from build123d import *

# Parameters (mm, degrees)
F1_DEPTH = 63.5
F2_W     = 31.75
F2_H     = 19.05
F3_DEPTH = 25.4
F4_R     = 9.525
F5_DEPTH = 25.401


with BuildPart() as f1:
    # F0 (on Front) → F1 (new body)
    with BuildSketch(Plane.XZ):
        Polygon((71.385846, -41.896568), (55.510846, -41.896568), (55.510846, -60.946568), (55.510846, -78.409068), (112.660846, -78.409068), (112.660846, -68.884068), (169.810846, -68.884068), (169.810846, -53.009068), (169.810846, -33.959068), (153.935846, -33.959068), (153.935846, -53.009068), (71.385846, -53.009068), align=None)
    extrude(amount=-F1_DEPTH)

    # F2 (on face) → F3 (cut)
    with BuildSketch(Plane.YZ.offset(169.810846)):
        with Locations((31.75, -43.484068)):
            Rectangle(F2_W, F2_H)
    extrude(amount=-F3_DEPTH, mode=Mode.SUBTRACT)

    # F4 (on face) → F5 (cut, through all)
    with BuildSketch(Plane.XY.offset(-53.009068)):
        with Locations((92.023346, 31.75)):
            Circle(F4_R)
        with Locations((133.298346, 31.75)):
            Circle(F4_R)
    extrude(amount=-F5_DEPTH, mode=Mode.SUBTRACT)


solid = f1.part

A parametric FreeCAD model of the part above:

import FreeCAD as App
import Part
import Sketcher

V = App.Vector
Q = App.Units.Quantity


def add_polygon(sketch, points):
    """Adds a closed chain of lines whose ends are joined by coincident constraints."""
    first, n = sketch.GeometryCount, len(points)
    for a, b in zip(points, points[1:] + points[:1]):
        sketch.addGeometry(Part.LineSegment(App.Vector(*a, 0), App.Vector(*b, 0)), False)
    for i in range(n):
        sketch.addConstraint(Sketcher.Constraint("Coincident", first + i, 2, first + (i + 1) % n, 1))

doc = App.newDocument("Part")
body = doc.addObject("PartDesign::Body", "Body")

sketch1 = body.newObject("Sketcher::SketchObject", "Sketch")
sketch1.AttachmentSupport = (doc.getObject("XZ_Plane"), [""])
sketch1.MapMode = "FlatFace"
add_polygon(sketch1, [(71, -42), (56, -42), (56, -78), (113, -78), (113, -69), (170, -69), (170, -34), (154, -34), (154, -53), (71, -53)])
sketch1.addConstraint(Sketcher.Constraint("Horizontal", 0))
sketch1.addConstraint(Sketcher.Constraint("Vertical", 1))
sketch1.addConstraint(Sketcher.Constraint("Horizontal", 2))
sketch1.addConstraint(Sketcher.Constraint("Vertical", 3))
sketch1.addConstraint(Sketcher.Constraint("Horizontal", 4))
sketch1.addConstraint(Sketcher.Constraint("Vertical", 5))
sketch1.addConstraint(Sketcher.Constraint("Horizontal", 6))
sketch1.addConstraint(Sketcher.Constraint("Vertical", 7))
sketch1.addConstraint(Sketcher.Constraint("Horizontal", 8))
sketch1.addConstraint(Sketcher.Constraint("Vertical", 9))
sketch1.addConstraint(Sketcher.Constraint("Equal", 2, 4))
sketch1.addConstraint(Sketcher.Constraint("Equal", 0, 6))
sketch1.addConstraint(Sketcher.Constraint("DistanceY", 2, 2, 7, 2, Q("1 in")))
sketch1.addConstraint(Sketcher.Constraint("DistanceX", 2, 1, 2, 2, Q("2.25 in")))
sketch1.addConstraint(Sketcher.Constraint("DistanceX", 8, 2, 8, 1, Q("3.25 in")))
sketch1.addConstraint(Sketcher.Constraint("DistanceY", 7, 2, 7, 1, Q("0.75 in")))
sketch1.addConstraint(Sketcher.Constraint("DistanceY", 1, 2, 1, 1, Q("1.4375 in")))
sketch1.addConstraint(Sketcher.Constraint("DistanceY", 3, 1, 3, 2, Q("0.375 in")))
sketch1.addConstraint(Sketcher.Constraint("DistanceY", 0, 2, -1, 1, 41.896568))
sketch1.addConstraint(Sketcher.Constraint("DistanceX", -1, 1, 0, 2, 55.510846))
pad1 = body.newObject("PartDesign::Pad", "Pad")
pad1.Profile = sketch1
pad1.Length = Q("2.5 in")
pad1.Reversed = True

sketch2 = body.newObject("Sketcher::SketchObject", "Sketch001")
sketch2.AttachmentSupport = (doc.getObject("YZ_Plane"), [""])
sketch2.MapMode = "FlatFace"
sketch2.AttachmentOffset = App.Placement(V(0, 0, 169.810846), App.Rotation())
add_polygon(sketch2, [(16, -34), (16, -53), (48, -53), (48, -34)])
sketch2.addConstraint(Sketcher.Constraint("Vertical", 0))
sketch2.addConstraint(Sketcher.Constraint("Horizontal", 1))
sketch2.addConstraint(Sketcher.Constraint("Vertical", 2))
sketch2.addConstraint(Sketcher.Constraint("Horizontal", 3))
sketch2.addConstraint(Sketcher.Constraint("DistanceX", 1, 1, 1, 2, Q("1.25 in")))
sketch2.addConstraint(Sketcher.Constraint("DistanceY", 0, 2, 0, 1, Q("0.75 in")))
sketch2.addConstraint(Sketcher.Constraint("DistanceX", -1, 1, 0, 2, Q("0.625 in")))
sketch2.addConstraint(Sketcher.Constraint("DistanceY", 2, 2, -1, 1, 33.959068))
pocket1 = body.newObject("PartDesign::Pocket", "Pocket")
pocket1.Profile = sketch2
pocket1.Length = Q("1 in")

sketch3 = body.newObject("Sketcher::SketchObject", "Sketch002")
sketch3.AttachmentSupport = (doc.getObject("XY_Plane"), [""])
sketch3.MapMode = "FlatFace"
sketch3.AttachmentOffset = App.Placement(V(0, 0, -53.009068), App.Rotation())
sketch3.addGeometry(Part.Circle(V(92, 32, 0), V(0, 0, 1), 10), False)
sketch3.addGeometry(Part.Circle(V(133, 32, 0), V(0, 0, 1), 10), False)
sketch3.addConstraint(Sketcher.Constraint("Equal", 0, 1))
sketch3.addConstraint(Sketcher.Constraint("Horizontal", 0, 3, 1, 3))
sketch3.addConstraint(Sketcher.Constraint("Diameter", 0, Q("0.75 in")))
sketch3.addConstraint(Sketcher.Constraint("DistanceY", -1, 1, 0, 3, Q("1.25 in")))
sketch3.addConstraint(Sketcher.Constraint("DistanceX", 0, 3, 1, 3, Q("1.625 in")))
sketch3.addConstraint(Sketcher.Constraint("DistanceX", -1, 1, 0, 3, 92.023346))
pocket2 = body.newObject("PartDesign::Pocket", "Pocket001")
pocket2.Profile = sketch3
pocket2.Type = "ThroughAll"

doc.recompute()
